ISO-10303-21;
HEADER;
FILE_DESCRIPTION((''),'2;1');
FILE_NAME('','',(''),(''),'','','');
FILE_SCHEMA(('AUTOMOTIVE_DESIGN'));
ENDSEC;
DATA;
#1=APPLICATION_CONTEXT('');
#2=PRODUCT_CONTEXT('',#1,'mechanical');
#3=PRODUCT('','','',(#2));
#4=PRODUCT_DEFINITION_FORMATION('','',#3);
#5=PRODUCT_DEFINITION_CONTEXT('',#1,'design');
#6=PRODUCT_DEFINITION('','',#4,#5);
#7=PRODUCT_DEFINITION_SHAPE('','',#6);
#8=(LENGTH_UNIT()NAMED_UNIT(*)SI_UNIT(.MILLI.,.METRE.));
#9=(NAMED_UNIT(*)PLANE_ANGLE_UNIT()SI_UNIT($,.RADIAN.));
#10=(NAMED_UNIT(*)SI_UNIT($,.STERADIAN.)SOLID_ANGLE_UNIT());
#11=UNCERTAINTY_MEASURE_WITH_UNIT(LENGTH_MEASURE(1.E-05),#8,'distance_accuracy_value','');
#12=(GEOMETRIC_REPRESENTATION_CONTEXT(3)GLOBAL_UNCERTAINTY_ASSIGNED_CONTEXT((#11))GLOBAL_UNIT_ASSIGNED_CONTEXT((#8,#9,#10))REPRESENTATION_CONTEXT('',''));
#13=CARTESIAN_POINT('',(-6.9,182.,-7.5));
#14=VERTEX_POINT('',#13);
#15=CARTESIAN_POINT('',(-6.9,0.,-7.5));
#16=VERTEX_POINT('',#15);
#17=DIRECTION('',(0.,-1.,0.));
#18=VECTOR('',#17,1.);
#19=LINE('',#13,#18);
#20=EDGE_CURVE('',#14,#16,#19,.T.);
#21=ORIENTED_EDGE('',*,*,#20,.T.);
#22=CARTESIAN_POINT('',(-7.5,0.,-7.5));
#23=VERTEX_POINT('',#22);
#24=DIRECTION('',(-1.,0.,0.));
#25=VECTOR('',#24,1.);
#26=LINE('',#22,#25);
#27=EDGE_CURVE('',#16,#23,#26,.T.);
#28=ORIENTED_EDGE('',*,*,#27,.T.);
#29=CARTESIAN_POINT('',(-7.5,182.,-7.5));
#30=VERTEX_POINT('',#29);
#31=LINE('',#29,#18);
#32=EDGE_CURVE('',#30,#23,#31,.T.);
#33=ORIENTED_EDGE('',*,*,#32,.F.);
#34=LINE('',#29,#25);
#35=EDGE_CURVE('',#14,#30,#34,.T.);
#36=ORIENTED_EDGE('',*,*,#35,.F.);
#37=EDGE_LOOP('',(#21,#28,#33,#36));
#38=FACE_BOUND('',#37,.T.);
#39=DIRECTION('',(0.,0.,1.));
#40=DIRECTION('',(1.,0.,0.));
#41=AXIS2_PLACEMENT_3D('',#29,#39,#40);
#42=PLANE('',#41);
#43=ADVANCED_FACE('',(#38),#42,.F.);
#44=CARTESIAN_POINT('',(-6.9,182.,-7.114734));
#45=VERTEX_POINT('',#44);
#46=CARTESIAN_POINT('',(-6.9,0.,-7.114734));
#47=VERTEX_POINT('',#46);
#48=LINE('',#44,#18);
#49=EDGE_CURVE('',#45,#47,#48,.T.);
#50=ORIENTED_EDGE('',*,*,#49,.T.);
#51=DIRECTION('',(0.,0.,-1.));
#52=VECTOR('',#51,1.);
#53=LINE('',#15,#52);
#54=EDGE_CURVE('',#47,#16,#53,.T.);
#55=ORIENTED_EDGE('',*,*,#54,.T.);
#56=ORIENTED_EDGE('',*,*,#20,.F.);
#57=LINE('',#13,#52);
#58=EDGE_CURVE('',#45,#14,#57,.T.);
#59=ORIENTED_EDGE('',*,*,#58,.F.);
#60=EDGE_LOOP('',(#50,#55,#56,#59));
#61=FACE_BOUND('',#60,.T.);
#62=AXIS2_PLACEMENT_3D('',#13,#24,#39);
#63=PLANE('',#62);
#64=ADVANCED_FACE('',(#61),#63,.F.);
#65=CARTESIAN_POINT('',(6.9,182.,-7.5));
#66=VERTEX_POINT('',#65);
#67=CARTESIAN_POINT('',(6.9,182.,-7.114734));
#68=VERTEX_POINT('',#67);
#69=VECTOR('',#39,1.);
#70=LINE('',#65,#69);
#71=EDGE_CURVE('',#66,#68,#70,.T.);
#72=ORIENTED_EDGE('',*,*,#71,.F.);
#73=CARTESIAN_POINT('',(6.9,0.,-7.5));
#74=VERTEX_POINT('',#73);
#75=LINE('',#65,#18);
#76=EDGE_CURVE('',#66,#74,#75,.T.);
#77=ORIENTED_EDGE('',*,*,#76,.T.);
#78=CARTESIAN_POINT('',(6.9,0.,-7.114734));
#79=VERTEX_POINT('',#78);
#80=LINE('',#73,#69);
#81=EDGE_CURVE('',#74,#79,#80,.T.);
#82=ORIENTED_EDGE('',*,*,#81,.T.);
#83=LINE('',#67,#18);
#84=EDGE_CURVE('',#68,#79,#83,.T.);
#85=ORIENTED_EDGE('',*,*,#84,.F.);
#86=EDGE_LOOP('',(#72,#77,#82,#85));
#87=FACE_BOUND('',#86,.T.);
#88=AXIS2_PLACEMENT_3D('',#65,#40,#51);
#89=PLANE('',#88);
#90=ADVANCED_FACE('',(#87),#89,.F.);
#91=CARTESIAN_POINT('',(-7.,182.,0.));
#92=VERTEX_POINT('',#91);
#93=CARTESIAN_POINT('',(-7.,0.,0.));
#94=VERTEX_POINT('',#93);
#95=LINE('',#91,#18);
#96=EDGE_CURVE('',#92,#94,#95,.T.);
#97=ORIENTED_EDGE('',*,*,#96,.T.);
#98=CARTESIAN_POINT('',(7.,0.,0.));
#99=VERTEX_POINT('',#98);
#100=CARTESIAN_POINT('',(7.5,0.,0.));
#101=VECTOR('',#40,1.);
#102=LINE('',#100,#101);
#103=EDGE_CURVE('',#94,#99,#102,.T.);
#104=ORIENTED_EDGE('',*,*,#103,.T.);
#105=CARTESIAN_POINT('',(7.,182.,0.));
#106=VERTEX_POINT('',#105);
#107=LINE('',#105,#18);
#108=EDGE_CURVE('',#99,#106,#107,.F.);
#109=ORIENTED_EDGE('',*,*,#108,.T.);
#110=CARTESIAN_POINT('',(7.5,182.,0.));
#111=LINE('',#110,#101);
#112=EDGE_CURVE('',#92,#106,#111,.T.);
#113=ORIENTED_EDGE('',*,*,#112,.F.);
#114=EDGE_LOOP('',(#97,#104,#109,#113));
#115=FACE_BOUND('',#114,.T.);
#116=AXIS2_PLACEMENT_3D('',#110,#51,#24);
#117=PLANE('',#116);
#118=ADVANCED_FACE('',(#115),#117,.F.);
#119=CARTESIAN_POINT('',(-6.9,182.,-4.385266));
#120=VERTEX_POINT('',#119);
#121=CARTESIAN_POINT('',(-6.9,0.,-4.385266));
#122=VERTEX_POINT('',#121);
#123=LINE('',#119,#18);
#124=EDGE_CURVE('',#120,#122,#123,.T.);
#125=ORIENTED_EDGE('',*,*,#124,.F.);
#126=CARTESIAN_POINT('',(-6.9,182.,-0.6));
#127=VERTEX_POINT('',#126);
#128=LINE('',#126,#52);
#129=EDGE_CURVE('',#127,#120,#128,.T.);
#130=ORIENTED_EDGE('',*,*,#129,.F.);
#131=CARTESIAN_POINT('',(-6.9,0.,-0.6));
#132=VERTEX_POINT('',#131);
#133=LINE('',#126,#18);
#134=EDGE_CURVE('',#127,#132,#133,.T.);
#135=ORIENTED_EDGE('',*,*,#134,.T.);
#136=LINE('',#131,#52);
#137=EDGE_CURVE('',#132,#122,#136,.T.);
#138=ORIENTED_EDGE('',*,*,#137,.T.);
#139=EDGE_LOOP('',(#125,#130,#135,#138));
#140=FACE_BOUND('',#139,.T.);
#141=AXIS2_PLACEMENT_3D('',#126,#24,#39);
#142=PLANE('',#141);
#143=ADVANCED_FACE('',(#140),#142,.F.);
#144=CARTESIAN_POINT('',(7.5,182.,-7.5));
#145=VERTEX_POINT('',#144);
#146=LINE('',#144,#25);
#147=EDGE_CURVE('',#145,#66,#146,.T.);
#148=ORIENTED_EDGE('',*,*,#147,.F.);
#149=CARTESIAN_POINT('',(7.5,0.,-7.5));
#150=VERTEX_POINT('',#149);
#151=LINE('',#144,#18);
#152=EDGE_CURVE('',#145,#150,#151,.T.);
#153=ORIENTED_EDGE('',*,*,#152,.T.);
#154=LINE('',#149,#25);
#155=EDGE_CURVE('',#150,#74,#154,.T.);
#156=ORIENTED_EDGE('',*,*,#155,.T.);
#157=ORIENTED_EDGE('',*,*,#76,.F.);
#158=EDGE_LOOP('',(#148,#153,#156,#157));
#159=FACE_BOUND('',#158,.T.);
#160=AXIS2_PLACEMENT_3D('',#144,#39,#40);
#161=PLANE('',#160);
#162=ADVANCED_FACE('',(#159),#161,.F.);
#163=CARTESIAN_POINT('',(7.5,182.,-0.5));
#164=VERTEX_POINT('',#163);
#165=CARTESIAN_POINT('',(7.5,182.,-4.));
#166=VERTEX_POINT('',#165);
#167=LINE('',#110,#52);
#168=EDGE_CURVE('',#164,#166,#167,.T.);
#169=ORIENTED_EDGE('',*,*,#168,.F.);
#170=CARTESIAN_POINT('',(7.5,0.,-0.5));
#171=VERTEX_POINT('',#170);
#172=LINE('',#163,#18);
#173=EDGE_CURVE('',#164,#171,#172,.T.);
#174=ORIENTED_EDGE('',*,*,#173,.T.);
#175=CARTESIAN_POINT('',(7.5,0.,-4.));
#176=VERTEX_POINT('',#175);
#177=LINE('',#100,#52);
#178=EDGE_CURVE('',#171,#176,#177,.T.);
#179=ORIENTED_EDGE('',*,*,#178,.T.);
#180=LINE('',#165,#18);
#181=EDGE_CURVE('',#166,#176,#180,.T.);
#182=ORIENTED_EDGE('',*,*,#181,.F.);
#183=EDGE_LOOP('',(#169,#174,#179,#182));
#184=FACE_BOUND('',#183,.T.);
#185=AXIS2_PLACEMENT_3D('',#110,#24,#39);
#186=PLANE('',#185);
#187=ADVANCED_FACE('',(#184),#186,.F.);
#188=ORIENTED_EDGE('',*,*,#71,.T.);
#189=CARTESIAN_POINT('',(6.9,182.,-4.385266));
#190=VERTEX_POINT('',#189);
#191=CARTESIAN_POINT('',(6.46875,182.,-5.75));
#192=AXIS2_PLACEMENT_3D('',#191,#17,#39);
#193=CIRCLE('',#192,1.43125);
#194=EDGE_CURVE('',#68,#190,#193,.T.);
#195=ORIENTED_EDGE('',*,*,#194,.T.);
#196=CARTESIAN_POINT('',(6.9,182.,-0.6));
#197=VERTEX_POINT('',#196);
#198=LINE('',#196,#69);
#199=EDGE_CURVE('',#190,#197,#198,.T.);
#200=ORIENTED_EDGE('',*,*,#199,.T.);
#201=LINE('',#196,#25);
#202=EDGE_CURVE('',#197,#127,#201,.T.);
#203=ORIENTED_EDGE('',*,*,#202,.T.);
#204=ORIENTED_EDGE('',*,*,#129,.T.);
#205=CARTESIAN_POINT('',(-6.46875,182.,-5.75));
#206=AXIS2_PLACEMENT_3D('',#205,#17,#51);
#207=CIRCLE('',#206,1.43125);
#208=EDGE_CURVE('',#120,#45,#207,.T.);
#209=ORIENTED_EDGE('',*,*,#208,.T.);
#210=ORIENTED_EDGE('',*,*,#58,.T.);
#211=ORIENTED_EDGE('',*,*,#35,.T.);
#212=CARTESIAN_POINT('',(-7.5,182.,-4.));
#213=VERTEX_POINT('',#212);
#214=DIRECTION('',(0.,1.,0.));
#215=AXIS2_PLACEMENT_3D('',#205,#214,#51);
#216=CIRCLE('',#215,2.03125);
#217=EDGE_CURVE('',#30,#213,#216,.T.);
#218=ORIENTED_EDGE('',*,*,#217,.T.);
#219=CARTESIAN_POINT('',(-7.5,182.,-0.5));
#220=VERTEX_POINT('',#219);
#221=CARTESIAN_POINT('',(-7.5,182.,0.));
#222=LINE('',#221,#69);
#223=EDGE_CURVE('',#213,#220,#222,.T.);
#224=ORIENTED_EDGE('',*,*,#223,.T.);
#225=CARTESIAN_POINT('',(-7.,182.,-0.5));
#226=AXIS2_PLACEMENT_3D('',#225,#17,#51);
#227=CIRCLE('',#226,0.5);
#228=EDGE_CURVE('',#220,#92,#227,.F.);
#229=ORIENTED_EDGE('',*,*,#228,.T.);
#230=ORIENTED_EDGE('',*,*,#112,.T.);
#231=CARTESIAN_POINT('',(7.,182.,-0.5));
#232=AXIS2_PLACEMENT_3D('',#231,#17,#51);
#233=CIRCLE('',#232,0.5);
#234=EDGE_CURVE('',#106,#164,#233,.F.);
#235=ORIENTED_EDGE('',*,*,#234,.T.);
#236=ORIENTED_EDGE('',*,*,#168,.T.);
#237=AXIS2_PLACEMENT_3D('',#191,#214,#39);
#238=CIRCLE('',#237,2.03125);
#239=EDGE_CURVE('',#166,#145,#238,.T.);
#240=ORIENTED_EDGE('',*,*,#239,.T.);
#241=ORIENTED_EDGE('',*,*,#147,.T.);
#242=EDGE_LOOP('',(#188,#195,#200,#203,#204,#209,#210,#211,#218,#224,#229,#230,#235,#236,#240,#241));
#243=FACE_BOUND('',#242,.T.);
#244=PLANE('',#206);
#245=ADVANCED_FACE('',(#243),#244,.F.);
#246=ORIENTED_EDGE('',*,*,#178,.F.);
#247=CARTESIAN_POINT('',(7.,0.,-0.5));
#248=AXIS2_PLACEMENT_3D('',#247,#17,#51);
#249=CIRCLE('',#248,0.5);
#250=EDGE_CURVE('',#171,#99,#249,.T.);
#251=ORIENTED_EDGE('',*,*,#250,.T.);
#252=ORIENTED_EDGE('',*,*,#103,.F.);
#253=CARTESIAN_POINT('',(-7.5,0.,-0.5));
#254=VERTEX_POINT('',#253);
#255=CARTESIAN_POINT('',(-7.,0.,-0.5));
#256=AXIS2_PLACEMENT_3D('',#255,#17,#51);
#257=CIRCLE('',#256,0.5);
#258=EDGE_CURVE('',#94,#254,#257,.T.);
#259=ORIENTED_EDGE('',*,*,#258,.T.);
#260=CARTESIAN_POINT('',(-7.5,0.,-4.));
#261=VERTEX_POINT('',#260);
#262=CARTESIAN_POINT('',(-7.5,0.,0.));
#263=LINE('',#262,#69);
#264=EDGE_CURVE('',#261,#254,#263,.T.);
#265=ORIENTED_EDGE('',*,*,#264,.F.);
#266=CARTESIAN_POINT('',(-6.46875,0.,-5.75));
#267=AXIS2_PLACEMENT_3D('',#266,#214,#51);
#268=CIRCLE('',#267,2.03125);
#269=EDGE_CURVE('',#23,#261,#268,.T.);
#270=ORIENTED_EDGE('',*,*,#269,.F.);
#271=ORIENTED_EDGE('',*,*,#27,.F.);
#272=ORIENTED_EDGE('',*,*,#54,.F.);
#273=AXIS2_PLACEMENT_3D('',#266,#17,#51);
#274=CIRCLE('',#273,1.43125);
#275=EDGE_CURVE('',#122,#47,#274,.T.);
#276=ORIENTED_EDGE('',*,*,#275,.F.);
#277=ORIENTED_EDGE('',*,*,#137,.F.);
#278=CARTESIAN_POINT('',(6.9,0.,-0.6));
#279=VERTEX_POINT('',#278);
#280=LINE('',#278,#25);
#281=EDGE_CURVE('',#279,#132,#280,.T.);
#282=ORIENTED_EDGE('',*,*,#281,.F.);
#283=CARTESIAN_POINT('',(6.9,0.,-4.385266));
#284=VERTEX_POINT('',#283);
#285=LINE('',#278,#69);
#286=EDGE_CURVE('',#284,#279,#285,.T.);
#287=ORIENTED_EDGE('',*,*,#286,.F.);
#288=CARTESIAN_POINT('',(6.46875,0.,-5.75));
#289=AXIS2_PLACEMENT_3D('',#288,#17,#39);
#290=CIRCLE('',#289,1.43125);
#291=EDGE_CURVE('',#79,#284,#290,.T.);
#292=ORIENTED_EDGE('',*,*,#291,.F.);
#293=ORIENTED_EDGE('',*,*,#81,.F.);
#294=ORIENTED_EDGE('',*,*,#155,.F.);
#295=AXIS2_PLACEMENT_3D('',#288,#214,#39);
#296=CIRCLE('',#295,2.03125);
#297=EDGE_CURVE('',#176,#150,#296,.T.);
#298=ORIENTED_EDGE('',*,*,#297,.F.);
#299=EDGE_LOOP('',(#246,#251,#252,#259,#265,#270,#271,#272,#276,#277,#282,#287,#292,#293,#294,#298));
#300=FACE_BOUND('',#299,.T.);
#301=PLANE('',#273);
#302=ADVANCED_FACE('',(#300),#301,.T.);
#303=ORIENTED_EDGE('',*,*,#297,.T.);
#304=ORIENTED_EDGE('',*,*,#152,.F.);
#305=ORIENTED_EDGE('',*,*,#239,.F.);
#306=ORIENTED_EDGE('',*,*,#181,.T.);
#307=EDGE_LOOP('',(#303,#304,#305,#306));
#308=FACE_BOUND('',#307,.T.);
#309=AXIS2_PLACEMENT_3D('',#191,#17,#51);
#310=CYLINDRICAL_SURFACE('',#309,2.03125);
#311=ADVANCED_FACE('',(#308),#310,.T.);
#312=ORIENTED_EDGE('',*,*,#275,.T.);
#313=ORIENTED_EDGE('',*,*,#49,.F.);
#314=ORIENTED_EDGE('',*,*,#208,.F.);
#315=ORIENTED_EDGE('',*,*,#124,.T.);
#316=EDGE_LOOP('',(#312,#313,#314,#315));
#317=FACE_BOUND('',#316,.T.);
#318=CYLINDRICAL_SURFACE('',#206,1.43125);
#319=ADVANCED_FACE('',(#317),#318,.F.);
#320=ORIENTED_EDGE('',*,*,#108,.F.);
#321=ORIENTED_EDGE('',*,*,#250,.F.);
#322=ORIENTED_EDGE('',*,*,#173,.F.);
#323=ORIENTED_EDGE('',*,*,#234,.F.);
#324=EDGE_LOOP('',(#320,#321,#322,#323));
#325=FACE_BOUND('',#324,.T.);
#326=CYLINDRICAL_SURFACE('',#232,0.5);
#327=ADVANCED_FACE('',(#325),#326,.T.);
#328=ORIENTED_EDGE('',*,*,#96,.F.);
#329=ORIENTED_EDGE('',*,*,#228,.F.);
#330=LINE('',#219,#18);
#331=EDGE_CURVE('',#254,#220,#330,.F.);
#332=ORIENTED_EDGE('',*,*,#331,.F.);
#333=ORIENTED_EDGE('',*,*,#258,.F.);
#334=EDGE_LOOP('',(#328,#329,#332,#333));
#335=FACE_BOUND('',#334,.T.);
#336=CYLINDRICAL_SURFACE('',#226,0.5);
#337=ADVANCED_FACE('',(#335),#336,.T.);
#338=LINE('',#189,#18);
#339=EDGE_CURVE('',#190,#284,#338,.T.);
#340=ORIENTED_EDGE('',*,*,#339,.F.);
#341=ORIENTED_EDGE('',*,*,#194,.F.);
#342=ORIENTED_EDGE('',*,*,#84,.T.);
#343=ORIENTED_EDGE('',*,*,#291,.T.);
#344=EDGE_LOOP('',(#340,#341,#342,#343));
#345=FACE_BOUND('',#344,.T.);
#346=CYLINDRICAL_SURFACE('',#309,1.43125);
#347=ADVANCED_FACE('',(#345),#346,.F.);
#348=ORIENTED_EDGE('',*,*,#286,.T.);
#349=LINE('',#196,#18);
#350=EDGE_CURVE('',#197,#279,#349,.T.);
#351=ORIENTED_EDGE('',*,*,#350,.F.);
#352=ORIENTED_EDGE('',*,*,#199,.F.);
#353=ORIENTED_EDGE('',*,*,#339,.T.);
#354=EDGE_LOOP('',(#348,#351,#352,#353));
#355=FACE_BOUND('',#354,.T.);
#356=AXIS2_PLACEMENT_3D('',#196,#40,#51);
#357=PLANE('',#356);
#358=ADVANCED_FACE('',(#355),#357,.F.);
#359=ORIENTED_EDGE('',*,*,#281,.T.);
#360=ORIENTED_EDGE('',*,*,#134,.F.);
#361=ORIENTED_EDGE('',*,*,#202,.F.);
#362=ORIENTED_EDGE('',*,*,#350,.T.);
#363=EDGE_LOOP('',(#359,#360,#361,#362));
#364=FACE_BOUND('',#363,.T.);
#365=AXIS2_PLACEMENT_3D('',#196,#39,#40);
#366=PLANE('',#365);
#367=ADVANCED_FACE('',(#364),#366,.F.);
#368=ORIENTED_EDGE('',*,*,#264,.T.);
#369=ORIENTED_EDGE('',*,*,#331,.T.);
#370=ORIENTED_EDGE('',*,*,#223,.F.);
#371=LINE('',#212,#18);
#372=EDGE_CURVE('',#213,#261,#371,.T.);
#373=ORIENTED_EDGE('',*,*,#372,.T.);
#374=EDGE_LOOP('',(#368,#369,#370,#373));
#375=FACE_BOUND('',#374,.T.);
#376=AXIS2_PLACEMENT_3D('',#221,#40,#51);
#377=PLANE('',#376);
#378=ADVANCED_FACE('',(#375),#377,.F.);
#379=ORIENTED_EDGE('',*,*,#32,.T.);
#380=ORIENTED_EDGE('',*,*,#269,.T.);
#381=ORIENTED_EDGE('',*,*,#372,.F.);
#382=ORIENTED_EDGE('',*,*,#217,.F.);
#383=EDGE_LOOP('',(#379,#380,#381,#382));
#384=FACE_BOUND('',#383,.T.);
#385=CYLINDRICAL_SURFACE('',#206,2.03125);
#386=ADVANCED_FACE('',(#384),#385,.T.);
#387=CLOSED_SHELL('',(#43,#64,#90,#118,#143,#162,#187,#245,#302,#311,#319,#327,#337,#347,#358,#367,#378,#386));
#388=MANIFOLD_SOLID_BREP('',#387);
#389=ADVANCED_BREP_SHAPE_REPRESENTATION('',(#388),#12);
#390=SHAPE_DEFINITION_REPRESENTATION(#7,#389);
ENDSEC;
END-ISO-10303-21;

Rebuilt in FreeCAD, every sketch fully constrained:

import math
import FreeCAD as App
import Part
import Sketcher
from FreeCAD import Vector
Q = App.Units.Quantity


def edges_at(feature, points):
    """Names of the edges that pass closest to the given points."""
    edges = feature.Shape.Edges
    near = lambda p: min(range(len(edges)), key=lambda i: edges[i].distToShape(Part.Vertex(*p))[0])
    return sorted({f"Edge{near(p) + 1}" for p in points})

doc = App.newDocument("Part")
body = doc.addObject("PartDesign::Body", "Body")

sketch1 = doc.addObject("Sketcher::SketchObject", "Sketch")
body.addObject(sketch1)
sketch1.AttachmentSupport = (doc.XZ_Plane, [""])
sketch1.MapMode = "FlatFace"
sketch1.addGeometry(Part.LineSegment(Vector(-7.5, 0, 0), Vector(7.5, 0, 0)), False)
sketch1.addGeometry(Part.LineSegment(Vector(7.5, 0, 0), Vector(7.5, -4, 0)), False)
sketch1.addGeometry(Part.ArcOfCircle(Part.Circle(Vector(6.47, -5.75, 0), Vector(0, 0, 1), 2.03), math.radians(-59), math.radians(59)), False)
sketch1.addGeometry(Part.LineSegment(Vector(7.5, -7.5, 0), Vector(6.9, -7.5, 0)), False)
sketch1.addGeometry(Part.LineSegment(Vector(6.9, -7.5, 0), Vector(6.9, -7.11, 0)), False)
sketch1.addGeometry(Part.ArcOfCircle(Part.Circle(Vector(6.47, -5.75, 0), Vector(0, 0, 1), 1.43), math.radians(-72), math.radians(72)), False)
sketch1.addGeometry(Part.LineSegment(Vector(6.9, -4.39, 0), Vector(6.9, -0.6, 0)), False)
sketch1.addGeometry(Part.LineSegment(Vector(6.9, -0.6, 0), Vector(-6.9, -0.6, 0)), False)
sketch1.addGeometry(Part.LineSegment(Vector(-6.9, -0.6, 0), Vector(-6.9, -4.39, 0)), False)
sketch1.addGeometry(Part.ArcOfCircle(Part.Circle(Vector(-6.47, -5.75, 0), Vector(0, 0, 1), 1.43), math.radians(108), math.radians(252)), False)
sketch1.addGeometry(Part.LineSegment(Vector(-6.9, -7.11, 0), Vector(-6.9, -7.5, 0)), False)
sketch1.addGeometry(Part.LineSegment(Vector(-6.9, -7.5, 0), Vector(-7.5, -7.5, 0)), False)
sketch1.addGeometry(Part.ArcOfCircle(Part.Circle(Vector(-6.47, -5.75, 0), Vector(0, 0, 1), 2.03), math.radians(121), math.radians(239)), False)
sketch1.addGeometry(Part.LineSegment(Vector(-7.5, -4, 0), Vector(-7.5, 0, 0)), False)
sketch1.addConstraint(Sketcher.Constraint("Coincident", 0, 2, 1, 1))
sketch1.addConstraint(Sketcher.Constraint("Coincident", 1, 2, 2, 2))
sketch1.addConstraint(Sketcher.Constraint("Coincident", 2, 1, 3, 1))
sketch1.addConstraint(Sketcher.Constraint("Coincident", 3, 2, 4, 1))
sketch1.addConstraint(Sketcher.Constraint("Coincident", 4, 2, 5, 1))
sketch1.addConstraint(Sketcher.Constraint("Coincident", 5, 2, 6, 1))
sketch1.addConstraint(Sketcher.Constraint("Coincident", 6, 2, 7, 1))
sketch1.addConstraint(Sketcher.Constraint("Coincident", 7, 2, 8, 1))
sketch1.addConstraint(Sketcher.Constraint("Coincident", 8, 2, 9, 1))
sketch1.addConstraint(Sketcher.Constraint("Coincident", 9, 2, 10, 1))
sketch1.addConstraint(Sketcher.Constraint("Coincident", 10, 2, 11, 1))
sketch1.addConstraint(Sketcher.Constraint("Coincident", 11, 2, 12, 2))
sketch1.addConstraint(Sketcher.Constraint("Coincident", 12, 1, 13, 1))
sketch1.addConstraint(Sketcher.Constraint("Coincident", 13, 2, 0, 1))
sketch1.addConstraint(Sketcher.Constraint("Horizontal", 0))
sketch1.addConstraint(Sketcher.Constraint("Vertical", 1))
sketch1.addConstraint(Sketcher.Constraint("Horizontal", 3))
sketch1.addConstraint(Sketcher.Constraint("Vertical", 4))
sketch1.addConstraint(Sketcher.Constraint("Vertical", 6))
sketch1.addConstraint(Sketcher.Constraint("Horizontal", 7))
sketch1.addConstraint(Sketcher.Constraint("Vertical", 8))
sketch1.addConstraint(Sketcher.Constraint("Vertical", 10))
sketch1.addConstraint(Sketcher.Constraint("Horizontal", 11))
sketch1.addConstraint(Sketcher.Constraint("Vertical", 13))
sketch1.addConstraint(Sketcher.Constraint("Coincident", 5, 3, 2, 3))
sketch1.addConstraint(Sketcher.Constraint("Coincident", 12, 3, 9, 3))
sketch1.addConstraint(Sketcher.Constraint("Equal", 5, 9))
sketch1.addConstraint(Sketcher.Constraint("Equal", 2, 12))
sketch1.addConstraint(Sketcher.Constraint("Symmetric", 0, 2, 13, 2, -1, 1))
sketch1.addConstraint(Sketcher.Constraint("Symmetric", 2, 3, 9, 3, -2))
sketch1.addConstraint(Sketcher.Constraint("Symmetric", 3, 2, 10, 2, -2))
sketch1.addConstraint(Sketcher.Constraint("Horizontal", 5, 2, 8, 2))
sketch1.addConstraint(Sketcher.Constraint("Vertical", 1, 2, 2, 1))
sketch1.addConstraint(Sketcher.Constraint("Vertical", 4, 2, 5, 2))
sketch1.addConstraint(Sketcher.Constraint("DistanceX", 0, 1, 0, 2, Q("15 mm")))
sketch1.addConstraint(Sketcher.Constraint("DistanceY", 1, 2, 1, 1, Q("4 mm")))
sketch1.addConstraint(Sketcher.Constraint("DistanceX", 3, 2, 3, 1, Q("0.6 mm")))
sketch1.addConstraint(Sketcher.Constraint("DistanceY", 2, 1, -1, 1, Q("7.5 mm")))
sketch1.addConstraint(Sketcher.Constraint("DistanceY", 6, 2, -1, 1, Q("0.6 mm")))
sketch1.addConstraint(Sketcher.Constraint("Radius", 2, Q("2.03125 mm")))
sketch1.addConstraint(Sketcher.Constraint("Radius", 5, Q("1.43125 mm")))
pad1 = doc.addObject("PartDesign::Pad", "Pad")
body.addObject(pad1)
pad1.Profile = sketch1
pad1.Length = 182
pad1.Reversed = True
doc.recompute()

fillet = doc.addObject("PartDesign::Fillet", "Fillet")
body.addObject(fillet)
fillet.Base = (pad1, edges_at(pad1, [(7.5, 91, 0), (-7.5, 91, 0)]))
fillet.Radius = 0.5

doc.recompute()
